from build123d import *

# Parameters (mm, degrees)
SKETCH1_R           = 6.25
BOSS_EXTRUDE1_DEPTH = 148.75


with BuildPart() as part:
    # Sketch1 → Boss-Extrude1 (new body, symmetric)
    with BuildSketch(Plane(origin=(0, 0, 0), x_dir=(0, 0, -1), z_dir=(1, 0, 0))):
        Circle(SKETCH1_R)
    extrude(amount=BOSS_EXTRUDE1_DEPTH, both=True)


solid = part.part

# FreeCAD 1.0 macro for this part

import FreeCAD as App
import Part
import Sketcher
from FreeCAD import Vector

doc = App.newDocument("Part")
body = doc.addObject("PartDesign::Body", "Body")

# Sketch on YZ plane
sketch1 = body.newObject("Sketcher::SketchObject", "Sketch")
sketch1.AttachmentSupport = (doc.getObject("YZ_Plane"), [""])
sketch1.MapMode = "FlatFace"
sketch1.addGeometry(Part.Circle(Vector(0, 0, 0), Vector(0, 0, 1), 6), False)
sketch1.addConstraint(Sketcher.Constraint("Coincident", 0, 3, -1, 1))
sketch1.addConstraint(Sketcher.Constraint("Diameter", 0, 12.5))
pad1 = body.newObject("PartDesign::Pad", "Pad")
pad1.Profile = sketch1
pad1.Length = 297.5
pad1.Midplane = True

doc.recompute()
